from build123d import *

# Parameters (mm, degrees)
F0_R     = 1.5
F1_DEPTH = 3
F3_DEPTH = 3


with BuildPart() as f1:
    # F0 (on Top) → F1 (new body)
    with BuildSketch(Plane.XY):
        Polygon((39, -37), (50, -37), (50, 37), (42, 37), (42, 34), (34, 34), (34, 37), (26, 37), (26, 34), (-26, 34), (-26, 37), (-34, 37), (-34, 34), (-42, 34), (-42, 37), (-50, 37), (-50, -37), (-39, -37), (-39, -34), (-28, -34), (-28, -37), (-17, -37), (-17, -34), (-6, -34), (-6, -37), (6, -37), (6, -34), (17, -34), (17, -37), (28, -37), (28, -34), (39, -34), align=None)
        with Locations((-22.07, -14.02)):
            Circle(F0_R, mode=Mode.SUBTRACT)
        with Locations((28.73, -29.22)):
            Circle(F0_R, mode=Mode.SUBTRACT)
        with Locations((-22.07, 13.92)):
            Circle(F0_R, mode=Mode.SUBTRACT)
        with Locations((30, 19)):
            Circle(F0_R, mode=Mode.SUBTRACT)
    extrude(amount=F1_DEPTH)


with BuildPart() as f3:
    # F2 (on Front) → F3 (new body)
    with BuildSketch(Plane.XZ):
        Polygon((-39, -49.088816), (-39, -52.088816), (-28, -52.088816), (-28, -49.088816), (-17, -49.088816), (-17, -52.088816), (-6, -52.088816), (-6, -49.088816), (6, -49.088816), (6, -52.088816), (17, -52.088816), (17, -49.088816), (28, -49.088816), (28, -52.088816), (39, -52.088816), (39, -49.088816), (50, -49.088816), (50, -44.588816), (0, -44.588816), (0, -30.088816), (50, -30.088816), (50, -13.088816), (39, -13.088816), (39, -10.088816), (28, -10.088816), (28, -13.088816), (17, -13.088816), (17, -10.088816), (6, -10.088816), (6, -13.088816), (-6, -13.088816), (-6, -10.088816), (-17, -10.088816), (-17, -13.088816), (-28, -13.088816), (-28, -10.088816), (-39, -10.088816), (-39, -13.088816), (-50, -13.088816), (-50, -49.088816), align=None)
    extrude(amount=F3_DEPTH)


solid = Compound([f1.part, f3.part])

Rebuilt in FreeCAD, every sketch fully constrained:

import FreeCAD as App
import Part
import Sketcher
Q = App.Units.Quantity

doc = App.newDocument("Part")
body = doc.addObject("PartDesign::Body", "Body")

sketch1 = body.newObject("Sketcher::SketchObject", "Sketch")
sketch1.AttachmentSupport = (doc.getObject("XY_Plane"), [""])
sketch1.MapMode = "FlatFace"
sketch1.addGeometry(Part.LineSegment(App.Vector(39, -37, 0), App.Vector(50, -37, 0)), False)
sketch1.addGeometry(Part.LineSegment(App.Vector(50, -37, 0), App.Vector(50, 37, 0)), False)
sketch1.addGeometry(Part.LineSegment(App.Vector(50, 37, 0), App.Vector(42, 37, 0)), False)
sketch1.addGeometry(Part.LineSegment(App.Vector(42, 37, 0), App.Vector(42, 34, 0)), False)
sketch1.addGeometry(Part.LineSegment(App.Vector(42, 34, 0), App.Vector(34, 34, 0)), False)
sketch1.addGeometry(Part.LineSegment(App.Vector(34, 34, 0), App.Vector(34, 37, 0)), False)
sketch1.addGeometry(Part.LineSegment(App.Vector(34, 37, 0), App.Vector(26, 37, 0)), False)
sketch1.addGeometry(Part.LineSegment(App.Vector(26, 37, 0), App.Vector(26, 34, 0)), False)
sketch1.addGeometry(Part.LineSegment(App.Vector(26, 34, 0), App.Vector(-26, 34, 0)), False)
sketch1.addGeometry(Part.LineSegment(App.Vector(-26, 34, 0), App.Vector(-26, 37, 0)), False)
sketch1.addGeometry(Part.LineSegment(App.Vector(-26, 37, 0), App.Vector(-34, 37, 0)), False)
sketch1.addGeometry(Part.LineSegment(App.Vector(-34, 37, 0), App.Vector(-34, 34, 0)), False)
sketch1.addGeometry(Part.LineSegment(App.Vector(-34, 34, 0), App.Vector(-42, 34, 0)), False)
sketch1.addGeometry(Part.LineSegment(App.Vector(-42, 34, 0), App.Vector(-42, 37, 0)), False)
sketch1.addGeometry(Part.LineSegment(App.Vector(-42, 37, 0), App.Vector(-50, 37, 0)), False)
sketch1.addGeometry(Part.LineSegment(App.Vector(-50, 37, 0), App.Vector(-50, -37, 0)), False)
sketch1.addGeometry(Part.LineSegment(App.Vector(-50, -37, 0), App.Vector(-39, -37, 0)), False)
sketch1.addGeometry(Part.LineSegment(App.Vector(-39, -37, 0), App.Vector(-39, -34, 0)), False)
sketch1.addGeometry(Part.LineSegment(App.Vector(-39, -34, 0), App.Vector(-28, -34, 0)), False)
sketch1.addGeometry(Part.LineSegment(App.Vector(-28, -34, 0), App.Vector(-28, -37, 0)), False)
sketch1.addGeometry(Part.LineSegment(App.Vector(-28, -37, 0), App.Vector(-17, -37, 0)), False)
sketch1.addGeometry(Part.LineSegment(App.Vector(-17, -37, 0), App.Vector(-17, -34, 0)), False)
sketch1.addGeometry(Part.LineSegment(App.Vector(-17, -34, 0), App.Vector(-6, -34, 0)), False)
sketch1.addGeometry(Part.LineSegment(App.Vector(-6, -34, 0), App.Vector(-6, -37, 0)), False)
sketch1.addGeometry(Part.LineSegment(App.Vector(-6, -37, 0), App.Vector(6, -37, 0)), False)
sketch1.addGeometry(Part.LineSegment(App.Vector(6, -37, 0), App.Vector(6, -34, 0)), False)
sketch1.addGeometry(Part.LineSegment(App.Vector(6, -34, 0), App.Vector(17, -34, 0)), False)
sketch1.addGeometry(Part.LineSegment(App.Vector(17, -34, 0), App.Vector(17, -37, 0)), False)
sketch1.addGeometry(Part.LineSegment(App.Vector(17, -37, 0), App.Vector(28, -37, 0)), False)
sketch1.addGeometry(Part.LineSegment(App.Vector(28, -37, 0), App.Vector(28, -34, 0)), False)
sketch1.addGeometry(Part.LineSegment(App.Vector(28, -34, 0), App.Vector(39, -34, 0)), False)
sketch1.addGeometry(Part.LineSegment(App.Vector(39, -34, 0), App.Vector(39, -37, 0)), False)
sketch1.addGeometry(Part.Circle(App.Vector(-22.07, -14.02, 0), App.Vector(0, 0, 1), 1.5), False)
sketch1.addGeometry(Part.Circle(App.Vector(28.73, -29.22, 0), App.Vector(0, 0, 1), 1.5), False)
sketch1.addGeometry(Part.Circle(App.Vector(-22.07, 13.92, 0), App.Vector(0, 0, 1), 1.5), False)
sketch1.addGeometry(Part.Circle(App.Vector(30, 19, 0), App.Vector(0, 0, 1), 1.5), False)
sketch1.addConstraint(Sketcher.Constraint("Coincident", 0, 2, 1, 1))
sketch1.addConstraint(Sketcher.Constraint("Coincident", 1, 2, 2, 1))
sketch1.addConstraint(Sketcher.Constraint("Coincident", 2, 2, 3, 1))
sketch1.addConstraint(Sketcher.Constraint("Coincident", 3, 2, 4, 1))
sketch1.addConstraint(Sketcher.Constraint("Coincident", 4, 2, 5, 1))
sketch1.addConstraint(Sketcher.Constraint("Coincident", 5, 2, 6, 1))
sketch1.addConstraint(Sketcher.Constraint("Coincident", 6, 2, 7, 1))
sketch1.addConstraint(Sketcher.Constraint("Coincident", 7, 2, 8, 1))
sketch1.addConstraint(Sketcher.Constraint("Coincident", 8, 2, 9, 1))
sketch1.addConstraint(Sketcher.Constraint("Coincident", 9, 2, 10, 1))
sketch1.addConstraint(Sketcher.Constraint("Coincident", 10, 2, 11, 1))
sketch1.addConstraint(Sketcher.Constraint("Coincident", 11, 2, 12, 1))
sketch1.addConstraint(Sketcher.Constraint("Coincident", 12, 2, 13, 1))
sketch1.addConstraint(Sketcher.Constraint("Coincident", 13, 2, 14, 1))
sketch1.addConstraint(Sketcher.Constraint("Coincident", 14, 2, 15, 1))
sketch1.addConstraint(Sketcher.Constraint("Coincident", 15, 2, 16, 1))
sketch1.addConstraint(Sketcher.Constraint("Coincident", 16, 2, 17, 1))
sketch1.addConstraint(Sketcher.Constraint("Coincident", 17, 2, 18, 1))
sketch1.addConstraint(Sketcher.Constraint("Coincident", 18, 2, 19, 1))
sketch1.addConstraint(Sketcher.Constraint("Coincident", 19, 2, 20, 1))
sketch1.addConstraint(Sketcher.Constraint("Coincident", 20, 2, 21, 1))
sketch1.addConstraint(Sketcher.Constraint("Coincident", 21, 2, 22, 1))
sketch1.addConstraint(Sketcher.Constraint("Coincident", 22, 2, 23, 1))
sketch1.addConstraint(Sketcher.Constraint("Coincident", 23, 2, 24, 1))
sketch1.addConstraint(Sketcher.Constraint("Coincident", 24, 2, 25, 1))
sketch1.addConstraint(Sketcher.Constraint("Coincident", 25, 2, 26, 1))
sketch1.addConstraint(Sketcher.Constraint("Coincident", 26, 2, 27, 1))
sketch1.addConstraint(Sketcher.Constraint("Coincident", 27, 2, 28, 1))
sketch1.addConstraint(Sketcher.Constraint("Coincident", 28, 2, 29, 1))
sketch1.addConstraint(Sketcher.Constraint("Coincident", 29, 2, 30, 1))
sketch1.addConstraint(Sketcher.Constraint("Coincident", 30, 2, 31, 1))
sketch1.addConstraint(Sketcher.Constraint("Coincident", 31, 2, 0, 1))
sketch1.addConstraint(Sketcher.Constraint("Horizontal", 0))
sketch1.addConstraint(Sketcher.Constraint("Vertical", 1))
sketch1.addConstraint(Sketcher.Constraint("Horizontal", 2))
sketch1.addConstraint(Sketcher.Constraint("Vertical", 3))
sketch1.addConstraint(Sketcher.Constraint("Horizontal", 4))
sketch1.addConstraint(Sketcher.Constraint("Vertical", 5))
sketch1.addConstraint(Sketcher.Constraint("Horizontal", 6))
sketch1.addConstraint(Sketcher.Constraint("Vertical", 7))
sketch1.addConstraint(Sketcher.Constraint("Horizontal", 8))
sketch1.addConstraint(Sketcher.Constraint("Vertical", 9))
sketch1.addConstraint(Sketcher.Constraint("Horizontal", 10))
sketch1.addConstraint(Sketcher.Constraint("Vertical", 11))
sketch1.addConstraint(Sketcher.Constraint("Horizontal", 12))
sketch1.addConstraint(Sketcher.Constraint("Vertical", 13))
sketch1.addConstraint(Sketcher.Constraint("Horizontal", 14))
sketch1.addConstraint(Sketcher.Constraint("Vertical", 15))
sketch1.addConstraint(Sketcher.Constraint("Horizontal", 16))
sketch1.addConstraint(Sketcher.Constraint("Vertical", 17))
sketch1.addConstraint(Sketcher.Constraint("Horizontal", 18))
sketch1.addConstraint(Sketcher.Constraint("Vertical", 19))
sketch1.addConstraint(Sketcher.Constraint("Horizontal", 20))
sketch1.addConstraint(Sketcher.Constraint("Vertical", 21))
sketch1.addConstraint(Sketcher.Constraint("Horizontal", 22))
sketch1.addConstraint(Sketcher.Constraint("Vertical", 23))
sketch1.addConstraint(Sketcher.Constraint("Horizontal", 24))
sketch1.addConstraint(Sketcher.Constraint("Vertical", 25))
sketch1.addConstraint(Sketcher.Constraint("Horizontal", 26))
sketch1.addConstraint(Sketcher.Constraint("Vertical", 27))
sketch1.addConstraint(Sketcher.Constraint("Horizontal", 28))
sketch1.addConstraint(Sketcher.Constraint("Vertical", 29))
sketch1.addConstraint(Sketcher.Constraint("Horizontal", 30))
sketch1.addConstraint(Sketcher.Constraint("Vertical", 31))
sketch1.addConstraint(Sketcher.Constraint("Equal", 32, 33))
sketch1.addConstraint(Sketcher.Constraint("Equal", 33, 34))
sketch1.addConstraint(Sketcher.Constraint("Equal", 34, 35))
sketch1.addConstraint(Sketcher.Constraint("Symmetric", 0, 2, 14, 2, -1, 1))
sketch1.addConstraint(Sketcher.Constraint("Symmetric", 6, 2, 9, 2, -2))
sketch1.addConstraint(Sketcher.Constraint("Symmetric", 4, 2, 11, 2, -2))
sketch1.addConstraint(Sketcher.Constraint("Symmetric", 2, 2, 13, 2, -2))
sketch1.addConstraint(Sketcher.Constraint("Symmetric", 22, 2, 25, 2, -2))
sketch1.addConstraint(Sketcher.Constraint("Symmetric", 20, 2, 27, 2, -2))
sketch1.addConstraint(Sketcher.Constraint("Symmetric", 18, 2, 29, 2, -2))
sketch1.addConstraint(Sketcher.Constraint("Symmetric", 16, 2, 31, 2, -2))
sketch1.addConstraint(Sketcher.Constraint("Horizontal", 2, 2, 5, 2))
sketch1.addConstraint(Sketcher.Constraint("Horizontal", 4, 2, 7, 2))
sketch1.addConstraint(Sketcher.Constraint("Horizontal", 16, 2, 19, 2))
sketch1.addConstraint(Sketcher.Constraint("Horizontal", 18, 2, 21, 2))
sketch1.addConstraint(Sketcher.Constraint("Horizontal", 20, 2, 23, 2))
sketch1.addConstraint(Sketcher.Constraint("Vertical", 32, 3, 34, 3))
sketch1.addConstraint(Sketcher.Constraint("Equal", 2, 4))
sketch1.addConstraint(Sketcher.Constraint("Equal", 4, 6))
sketch1.addConstraint(Sketcher.Constraint("Equal", 16, 18))
sketch1.addConstraint(Sketcher.Constraint("Equal", 18, 20))
sketch1.addConstraint(Sketcher.Constraint("Equal", 20, 22))
sketch1.addConstraint(Sketcher.Constraint("Equal", 13, 17))
sketch1.addConstraint(Sketcher.Constraint("Diameter", 32, Q("3 mm")))
sketch1.addConstraint(Sketcher.Constraint("DistanceX", 0, 1, 0, 2, Q("11 mm")))
sketch1.addConstraint(Sketcher.Constraint("DistanceX", 2, 2, 2, 1, Q("8 mm")))
sketch1.addConstraint(Sketcher.Constraint("DistanceX", 8, 2, 8, 1, Q("52 mm")))
sketch1.addConstraint(Sketcher.Constraint("DistanceY", 1, 1, 1, 2, Q("74 mm")))
sketch1.addConstraint(Sketcher.Constraint("DistanceY", 3, 2, 3, 1, Q("3 mm")))
sketch1.addConstraint(Sketcher.Constraint("DistanceX", -1, 1, 35, 3, Q("30 mm")))
sketch1.addConstraint(Sketcher.Constraint("DistanceY", -1, 1, 35, 3, Q("19 mm")))
sketch1.addConstraint(Sketcher.Constraint("DistanceX", 32, 3, 33, 3, Q("50.8 mm")))
sketch1.addConstraint(Sketcher.Constraint("DistanceY", 33, 3, 32, 3, Q("15.2 mm")))
sketch1.addConstraint(Sketcher.Constraint("DistanceX", 32, 3, -1, 1, Q("22.07 mm")))
sketch1.addConstraint(Sketcher.Constraint("DistanceY", 32, 3, -1, 1, Q("14.02 mm")))
sketch1.addConstraint(Sketcher.Constraint("DistanceY", -1, 1, 34, 3, Q("13.92 mm")))
pad1 = body.newObject("PartDesign::Pad", "Pad")
pad1.Profile = sketch1
pad1.Length = 3
body2 = doc.addObject("PartDesign::Body", "Body001")

sketch2 = body2.newObject("Sketcher::SketchObject", "Sketch001")
sketch2.AttachmentSupport = (doc.getObject("XZ_Plane001"), [""])
sketch2.MapMode = "FlatFace"
sketch2.addGeometry(Part.LineSegment(App.Vector(-39, -49.088816, 0), App.Vector(-39, -52.088816, 0)), False)
sketch2.addGeometry(Part.LineSegment(App.Vector(-39, -52.088816, 0), App.Vector(-28, -52.088816, 0)), False)
sketch2.addGeometry(Part.LineSegment(App.Vector(-28, -52.088816, 0), App.Vector(-28, -49.088816, 0)), False)
sketch2.addGeometry(Part.LineSegment(App.Vector(-28, -49.088816, 0), App.Vector(-17, -49.088816, 0)), False)
sketch2.addGeometry(Part.LineSegment(App.Vector(-17, -49.088816, 0), App.Vector(-17, -52.088816, 0)), False)
sketch2.addGeometry(Part.LineSegment(App.Vector(-17, -52.088816, 0), App.Vector(-6, -52.088816, 0)), False)
sketch2.addGeometry(Part.LineSegment(App.Vector(-6, -52.088816, 0), App.Vector(-6, -49.088816, 0)), False)
sketch2.addGeometry(Part.LineSegment(App.Vector(-6, -49.088816, 0), App.Vector(6, -49.088816, 0)), False)
sketch2.addGeometry(Part.LineSegment(App.Vector(6, -49.088816, 0), App.Vector(6, -52.088816, 0)), False)
sketch2.addGeometry(Part.LineSegment(App.Vector(6, -52.088816, 0), App.Vector(17, -52.088816, 0)), False)
sketch2.addGeometry(Part.LineSegment(App.Vector(17, -52.088816, 0), App.Vector(17, -49.088816, 0)), False)
sketch2.addGeometry(Part.LineSegment(App.Vector(17, -49.088816, 0), App.Vector(28, -49.088816, 0)), False)
sketch2.addGeometry(Part.LineSegment(App.Vector(28, -49.088816, 0), App.Vector(28, -52.088816, 0)), False)
sketch2.addGeometry(Part.LineSegment(App.Vector(28, -52.088816, 0), App.Vector(39, -52.088816, 0)), False)
sketch2.addGeometry(Part.LineSegment(App.Vector(39, -52.088816, 0), App.Vector(39, -49.088816, 0)), False)
sketch2.addGeometry(Part.LineSegment(App.Vector(39, -49.088816, 0), App.Vector(50, -49.088816, 0)), False)
sketch2.addGeometry(Part.LineSegment(App.Vector(50, -49.088816, 0), App.Vector(50, -44.588816, 0)), False)
sketch2.addGeometry(Part.LineSegment(App.Vector(50, -44.588816, 0), App.Vector(0, -44.588816, 0)), False)
sketch2.addGeometry(Part.LineSegment(App.Vector(0, -44.588816, 0), App.Vector(0, -30.088816, 0)), False)
sketch2.addGeometry(Part.LineSegment(App.Vector(0, -30.088816, 0), App.Vector(50, -30.088816, 0)), False)
sketch2.addGeometry(Part.LineSegment(App.Vector(50, -30.088816, 0), App.Vector(50, -13.088816, 0)), False)
sketch2.addGeometry(Part.LineSegment(App.Vector(50, -13.088816, 0), App.Vector(39, -13.088816, 0)), False)
sketch2.addGeometry(Part.LineSegment(App.Vector(39, -13.088816, 0), App.Vector(39, -10.088816, 0)), False)
sketch2.addGeometry(Part.LineSegment(App.Vector(39, -10.088816, 0), App.Vector(28, -10.088816, 0)), False)
sketch2.addGeometry(Part.LineSegment(App.Vector(28, -10.088816, 0), App.Vector(28, -13.088816, 0)), False)
sketch2.addGeometry(Part.LineSegment(App.Vector(28, -13.088816, 0), App.Vector(17, -13.088816, 0)), False)
sketch2.addGeometry(Part.LineSegment(App.Vector(17, -13.088816, 0), App.Vector(17, -10.088816, 0)), False)
sketch2.addGeometry(Part.LineSegment(App.Vector(17, -10.088816, 0), App.Vector(6, -10.088816, 0)), False)
sketch2.addGeometry(Part.LineSegment(App.Vector(6, -10.088816, 0), App.Vector(6, -13.088816, 0)), False)
sketch2.addGeometry(Part.LineSegment(App.Vector(6, -13.088816, 0), App.Vector(-6, -13.088816, 0)), False)
sketch2.addGeometry(Part.LineSegment(App.Vector(-6, -13.088816, 0), App.Vector(-6, -10.088816, 0)), False)
sketch2.addGeometry(Part.LineSegment(App.Vector(-6, -10.088816, 0), App.Vector(-17, -10.088816, 0)), False)
sketch2.addGeometry(Part.LineSegment(App.Vector(-17, -10.088816, 0), App.Vector(-17, -13.088816, 0)), False)
sketch2.addGeometry(Part.LineSegment(App.Vector(-17, -13.088816, 0), App.Vector(-28, -13.088816, 0)), False)
sketch2.addGeometry(Part.LineSegment(App.Vector(-28, -13.088816, 0), App.Vector(-28, -10.088816, 0)), False)
sketch2.addGeometry(Part.LineSegment(App.Vector(-28, -10.088816, 0), App.Vector(-39, -10.088816, 0)), False)
sketch2.addGeometry(Part.LineSegment(App.Vector(-39, -10.088816, 0), App.Vector(-39, -13.088816, 0)), False)
sketch2.addGeometry(Part.LineSegment(App.Vector(-39, -13.088816, 0), App.Vector(-50, -13.088816, 0)), False)
sketch2.addGeometry(Part.LineSegment(App.Vector(-50, -13.088816, 0), App.Vector(-50, -49.088816, 0)), False)
sketch2.addGeometry(Part.LineSegment(App.Vector(-50, -49.088816, 0), App.Vector(-39, -49.088816, 0)), False)
sketch2.addConstraint(Sketcher.Constraint("Coincident", 0, 2, 1, 1))
sketch2.addConstraint(Sketcher.Constraint("Coincident", 1, 2, 2, 1))
sketch2.addConstraint(Sketcher.Constraint("Coincident", 2, 2, 3, 1))
sketch2.addConstraint(Sketcher.Constraint("Coincident", 3, 2, 4, 1))
sketch2.addConstraint(Sketcher.Constraint("Coincident", 4, 2, 5, 1))
sketch2.addConstraint(Sketcher.Constraint("Coincident", 5, 2, 6, 1))
sketch2.addConstraint(Sketcher.Constraint("Coincident", 6, 2, 7, 1))
sketch2.addConstraint(Sketcher.Constraint("Coincident", 7, 2, 8, 1))
sketch2.addConstraint(Sketcher.Constraint("Coincident", 8, 2, 9, 1))
sketch2.addConstraint(Sketcher.Constraint("Coincident", 9, 2, 10, 1))
sketch2.addConstraint(Sketcher.Constraint("Coincident", 10, 2, 11, 1))
sketch2.addConstraint(Sketcher.Constraint("Coincident", 11, 2, 12, 1))
sketch2.addConstraint(Sketcher.Constraint("Coincident", 12, 2, 13, 1))
sketch2.addConstraint(Sketcher.Constraint("Coincident", 13, 2, 14, 1))
sketch2.addConstraint(Sketcher.Constraint("Coincident", 14, 2, 15, 1))
sketch2.addConstraint(Sketcher.Constraint("Coincident", 15, 2, 16, 1))
sketch2.addConstraint(Sketcher.Constraint("Coincident", 16, 2, 17, 1))
sketch2.addConstraint(Sketcher.Constraint("Coincident", 17, 2, 18, 1))
sketch2.addConstraint(Sketcher.Constraint("Coincident", 18, 2, 19, 1))
sketch2.addConstraint(Sketcher.Constraint("Coincident", 19, 2, 20, 1))
sketch2.addConstraint(Sketcher.Constraint("Coincident", 20, 2, 21, 1))
sketch2.addConstraint(Sketcher.Constraint("Coincident", 21, 2, 22, 1))
sketch2.addConstraint(Sketcher.Constraint("Coincident", 22, 2, 23, 1))
sketch2.addConstraint(Sketcher.Constraint("Coincident", 23, 2, 24, 1))
sketch2.addConstraint(Sketcher.Constraint("Coincident", 24, 2, 25, 1))
sketch2.addConstraint(Sketcher.Constraint("Coincident", 25, 2, 26, 1))
sketch2.addConstraint(Sketcher.Constraint("Coincident", 26, 2, 27, 1))
sketch2.addConstraint(Sketcher.Constraint("Coincident", 27, 2, 28, 1))
sketch2.addConstraint(Sketcher.Constraint("Coincident", 28, 2, 29, 1))
sketch2.addConstraint(Sketcher.Constraint("Coincident", 29, 2, 30, 1))
sketch2.addConstraint(Sketcher.Constraint("Coincident", 30, 2, 31, 1))
sketch2.addConstraint(Sketcher.Constraint("Coincident", 31, 2, 32, 1))
sketch2.addConstraint(Sketcher.Constraint("Coincident", 32, 2, 33, 1))
sketch2.addConstraint(Sketcher.Constraint("Coincident", 33, 2, 34, 1))
sketch2.addConstraint(Sketcher.Constraint("Coincident", 34, 2, 35, 1))
sketch2.addConstraint(Sketcher.Constraint("Coincident", 35, 2, 36, 1))
sketch2.addConstraint(Sketcher.Constraint("Coincident", 36, 2, 37, 1))
sketch2.addConstraint(Sketcher.Constraint("Coincident", 37, 2, 38, 1))
sketch2.addConstraint(Sketcher.Constraint("Coincident", 38, 2, 39, 1))
sketch2.addConstraint(Sketcher.Constraint("Coincident", 39, 2, 0, 1))
sketch2.addConstraint(Sketcher.Constraint("Vertical", 0))
sketch2.addConstraint(Sketcher.Constraint("Horizontal", 1))
sketch2.addConstraint(Sketcher.Constraint("Vertical", 2))
sketch2.addConstraint(Sketcher.Constraint("Horizontal", 3))
sketch2.addConstraint(Sketcher.Constraint("Vertical", 4))
sketch2.addConstraint(Sketcher.Constraint("Horizontal", 5))
sketch2.addConstraint(Sketcher.Constraint("Vertical", 6))
sketch2.addConstraint(Sketcher.Constraint("Horizontal", 7))
sketch2.addConstraint(Sketcher.Constraint("Vertical", 8))
sketch2.addConstraint(Sketcher.Constraint("Horizontal", 9))
sketch2.addConstraint(Sketcher.Constraint("Vertical", 10))
sketch2.addConstraint(Sketcher.Constraint("Horizontal", 11))
sketch2.addConstraint(Sketcher.Constraint("Vertical", 12))
sketch2.addConstraint(Sketcher.Constraint("Horizontal", 13))
sketch2.addConstraint(Sketcher.Constraint("Vertical", 14))
sketch2.addConstraint(Sketcher.Constraint("Horizontal", 15))
sketch2.addConstraint(Sketcher.Constraint("Vertical", 16))
sketch2.addConstraint(Sketcher.Constraint("Horizontal", 17))
sketch2.addConstraint(Sketcher.Constraint("Vertical", 18))
sketch2.addConstraint(Sketcher.Constraint("Horizontal", 19))
sketch2.addConstraint(Sketcher.Constraint("Vertical", 20))
sketch2.addConstraint(Sketcher.Constraint("Horizontal", 21))
sketch2.addConstraint(Sketcher.Constraint("Vertical", 22))
sketch2.addConstraint(Sketcher.Constraint("Horizontal", 23))
sketch2.addConstraint(Sketcher.Constraint("Vertical", 24))
sketch2.addConstraint(Sketcher.Constraint("Horizontal", 25))
sketch2.addConstraint(Sketcher.Constraint("Vertical", 26))
sketch2.addConstraint(Sketcher.Constraint("Horizontal", 27))
sketch2.addConstraint(Sketcher.Constraint("Vertical", 28))
sketch2.addConstraint(Sketcher.Constraint("Horizontal", 29))
sketch2.addConstraint(Sketcher.Constraint("Vertical", 30))
sketch2.addConstraint(Sketcher.Constraint("Horizontal", 31))
sketch2.addConstraint(Sketcher.Constraint("Vertical", 32))
sketch2.addConstraint(Sketcher.Constraint("Horizontal", 33))
sketch2.addConstraint(Sketcher.Constraint("Vertical", 34))
sketch2.addConstraint(Sketcher.Constraint("Horizontal", 35))
sketch2.addConstraint(Sketcher.Constraint("Vertical", 36))
sketch2.addConstraint(Sketcher.Constraint("Horizontal", 37))
sketch2.addConstraint(Sketcher.Constraint("Vertical", 38))
sketch2.addConstraint(Sketcher.Constraint("Horizontal", 39))
sketch2.addConstraint(Sketcher.Constraint("Symmetric", 5, 2, 8, 2, -2))
sketch2.addConstraint(Sketcher.Constraint("Symmetric", 3, 2, 10, 2, -2))
sketch2.addConstraint(Sketcher.Constraint("Symmetric", 1, 2, 12, 2, -2))
sketch2.addConstraint(Sketcher.Constraint("Symmetric", 27, 2, 30, 2, -2))
sketch2.addConstraint(Sketcher.Constraint("Symmetric", 25, 2, 32, 2, -2))
sketch2.addConstraint(Sketcher.Constraint("Symmetric", 23, 2, 34, 2, -2))
sketch2.addConstraint(Sketcher.Constraint("Symmetric", 21, 2, 36, 2, -2))
sketch2.addConstraint(Sketcher.Constraint("Symmetric", 15, 2, 38, 2, -2))
sketch2.addConstraint(Sketcher.Constraint("PointOnObject", 17, 2, -2))
sketch2.addConstraint(Sketcher.Constraint("Horizontal", 1, 2, 4, 2))
sketch2.addConstraint(Sketcher.Constraint("Horizontal", 3, 2, 6, 2))
sketch2.addConstraint(Sketcher.Constraint("Horizontal", 11, 2, 14, 2))
sketch2.addConstraint(Sketcher.Constraint("Horizontal", 21, 2, 24, 2))
sketch2.addConstraint(Sketcher.Constraint("Horizontal", 23, 2, 26, 2))
sketch2.addConstraint(Sketcher.Constraint("Horizontal", 25, 2, 28, 2))
sketch2.addConstraint(Sketcher.Constraint("Vertical", 16, 2, 19, 2))
sketch2.addConstraint(Sketcher.Constraint("Vertical", 14, 2, 21, 2))
sketch2.addConstraint(Sketcher.Constraint("Vertical", 12, 2, 23, 2))
sketch2.addConstraint(Sketcher.Constraint("Vertical", 10, 2, 25, 2))
sketch2.addConstraint(Sketcher.Constraint("Vertical", 8, 2, 27, 2))
sketch2.addConstraint(Sketcher.Constraint("Vertical", 0, 2, 35, 2))
sketch2.addConstraint(Sketcher.Constraint("Equal", 1, 3))
sketch2.addConstraint(Sketcher.Constraint("Equal", 3, 5))
sketch2.addConstraint(Sketcher.Constraint("Equal", 13, 15))
sketch2.addConstraint(Sketcher.Constraint("Equal", 14, 22))
sketch2.addConstraint(Sketcher.Constraint("DistanceX", 1, 1, 1, 2, Q("11 mm")))
sketch2.addConstraint(Sketcher.Constraint("DistanceX", 7, 1, 7, 2, Q("12 mm")))
sketch2.addConstraint(Sketcher.Constraint("DistanceY", 0, 2, 0, 1, Q("3 mm")))
sketch2.addConstraint(Sketcher.Constraint("DistanceY", 20, 1, 20, 2, Q("17 mm")))
sketch2.addConstraint(Sketcher.Constraint("DistanceY", 38, 2, 38, 1, Q("36 mm")))
sketch2.addConstraint(Sketcher.Constraint("DistanceY", 16, 1, 16, 2, Q("4.5 mm")))
sketch2.addConstraint(Sketcher.Constraint("DistanceY", 0, 2, -1, 1, Q("52.088816 mm")))
pad2 = body2.newObject("PartDesign::Pad", "Pad001")
pad2.Profile = sketch2
pad2.Length = 3

doc.recompute()
